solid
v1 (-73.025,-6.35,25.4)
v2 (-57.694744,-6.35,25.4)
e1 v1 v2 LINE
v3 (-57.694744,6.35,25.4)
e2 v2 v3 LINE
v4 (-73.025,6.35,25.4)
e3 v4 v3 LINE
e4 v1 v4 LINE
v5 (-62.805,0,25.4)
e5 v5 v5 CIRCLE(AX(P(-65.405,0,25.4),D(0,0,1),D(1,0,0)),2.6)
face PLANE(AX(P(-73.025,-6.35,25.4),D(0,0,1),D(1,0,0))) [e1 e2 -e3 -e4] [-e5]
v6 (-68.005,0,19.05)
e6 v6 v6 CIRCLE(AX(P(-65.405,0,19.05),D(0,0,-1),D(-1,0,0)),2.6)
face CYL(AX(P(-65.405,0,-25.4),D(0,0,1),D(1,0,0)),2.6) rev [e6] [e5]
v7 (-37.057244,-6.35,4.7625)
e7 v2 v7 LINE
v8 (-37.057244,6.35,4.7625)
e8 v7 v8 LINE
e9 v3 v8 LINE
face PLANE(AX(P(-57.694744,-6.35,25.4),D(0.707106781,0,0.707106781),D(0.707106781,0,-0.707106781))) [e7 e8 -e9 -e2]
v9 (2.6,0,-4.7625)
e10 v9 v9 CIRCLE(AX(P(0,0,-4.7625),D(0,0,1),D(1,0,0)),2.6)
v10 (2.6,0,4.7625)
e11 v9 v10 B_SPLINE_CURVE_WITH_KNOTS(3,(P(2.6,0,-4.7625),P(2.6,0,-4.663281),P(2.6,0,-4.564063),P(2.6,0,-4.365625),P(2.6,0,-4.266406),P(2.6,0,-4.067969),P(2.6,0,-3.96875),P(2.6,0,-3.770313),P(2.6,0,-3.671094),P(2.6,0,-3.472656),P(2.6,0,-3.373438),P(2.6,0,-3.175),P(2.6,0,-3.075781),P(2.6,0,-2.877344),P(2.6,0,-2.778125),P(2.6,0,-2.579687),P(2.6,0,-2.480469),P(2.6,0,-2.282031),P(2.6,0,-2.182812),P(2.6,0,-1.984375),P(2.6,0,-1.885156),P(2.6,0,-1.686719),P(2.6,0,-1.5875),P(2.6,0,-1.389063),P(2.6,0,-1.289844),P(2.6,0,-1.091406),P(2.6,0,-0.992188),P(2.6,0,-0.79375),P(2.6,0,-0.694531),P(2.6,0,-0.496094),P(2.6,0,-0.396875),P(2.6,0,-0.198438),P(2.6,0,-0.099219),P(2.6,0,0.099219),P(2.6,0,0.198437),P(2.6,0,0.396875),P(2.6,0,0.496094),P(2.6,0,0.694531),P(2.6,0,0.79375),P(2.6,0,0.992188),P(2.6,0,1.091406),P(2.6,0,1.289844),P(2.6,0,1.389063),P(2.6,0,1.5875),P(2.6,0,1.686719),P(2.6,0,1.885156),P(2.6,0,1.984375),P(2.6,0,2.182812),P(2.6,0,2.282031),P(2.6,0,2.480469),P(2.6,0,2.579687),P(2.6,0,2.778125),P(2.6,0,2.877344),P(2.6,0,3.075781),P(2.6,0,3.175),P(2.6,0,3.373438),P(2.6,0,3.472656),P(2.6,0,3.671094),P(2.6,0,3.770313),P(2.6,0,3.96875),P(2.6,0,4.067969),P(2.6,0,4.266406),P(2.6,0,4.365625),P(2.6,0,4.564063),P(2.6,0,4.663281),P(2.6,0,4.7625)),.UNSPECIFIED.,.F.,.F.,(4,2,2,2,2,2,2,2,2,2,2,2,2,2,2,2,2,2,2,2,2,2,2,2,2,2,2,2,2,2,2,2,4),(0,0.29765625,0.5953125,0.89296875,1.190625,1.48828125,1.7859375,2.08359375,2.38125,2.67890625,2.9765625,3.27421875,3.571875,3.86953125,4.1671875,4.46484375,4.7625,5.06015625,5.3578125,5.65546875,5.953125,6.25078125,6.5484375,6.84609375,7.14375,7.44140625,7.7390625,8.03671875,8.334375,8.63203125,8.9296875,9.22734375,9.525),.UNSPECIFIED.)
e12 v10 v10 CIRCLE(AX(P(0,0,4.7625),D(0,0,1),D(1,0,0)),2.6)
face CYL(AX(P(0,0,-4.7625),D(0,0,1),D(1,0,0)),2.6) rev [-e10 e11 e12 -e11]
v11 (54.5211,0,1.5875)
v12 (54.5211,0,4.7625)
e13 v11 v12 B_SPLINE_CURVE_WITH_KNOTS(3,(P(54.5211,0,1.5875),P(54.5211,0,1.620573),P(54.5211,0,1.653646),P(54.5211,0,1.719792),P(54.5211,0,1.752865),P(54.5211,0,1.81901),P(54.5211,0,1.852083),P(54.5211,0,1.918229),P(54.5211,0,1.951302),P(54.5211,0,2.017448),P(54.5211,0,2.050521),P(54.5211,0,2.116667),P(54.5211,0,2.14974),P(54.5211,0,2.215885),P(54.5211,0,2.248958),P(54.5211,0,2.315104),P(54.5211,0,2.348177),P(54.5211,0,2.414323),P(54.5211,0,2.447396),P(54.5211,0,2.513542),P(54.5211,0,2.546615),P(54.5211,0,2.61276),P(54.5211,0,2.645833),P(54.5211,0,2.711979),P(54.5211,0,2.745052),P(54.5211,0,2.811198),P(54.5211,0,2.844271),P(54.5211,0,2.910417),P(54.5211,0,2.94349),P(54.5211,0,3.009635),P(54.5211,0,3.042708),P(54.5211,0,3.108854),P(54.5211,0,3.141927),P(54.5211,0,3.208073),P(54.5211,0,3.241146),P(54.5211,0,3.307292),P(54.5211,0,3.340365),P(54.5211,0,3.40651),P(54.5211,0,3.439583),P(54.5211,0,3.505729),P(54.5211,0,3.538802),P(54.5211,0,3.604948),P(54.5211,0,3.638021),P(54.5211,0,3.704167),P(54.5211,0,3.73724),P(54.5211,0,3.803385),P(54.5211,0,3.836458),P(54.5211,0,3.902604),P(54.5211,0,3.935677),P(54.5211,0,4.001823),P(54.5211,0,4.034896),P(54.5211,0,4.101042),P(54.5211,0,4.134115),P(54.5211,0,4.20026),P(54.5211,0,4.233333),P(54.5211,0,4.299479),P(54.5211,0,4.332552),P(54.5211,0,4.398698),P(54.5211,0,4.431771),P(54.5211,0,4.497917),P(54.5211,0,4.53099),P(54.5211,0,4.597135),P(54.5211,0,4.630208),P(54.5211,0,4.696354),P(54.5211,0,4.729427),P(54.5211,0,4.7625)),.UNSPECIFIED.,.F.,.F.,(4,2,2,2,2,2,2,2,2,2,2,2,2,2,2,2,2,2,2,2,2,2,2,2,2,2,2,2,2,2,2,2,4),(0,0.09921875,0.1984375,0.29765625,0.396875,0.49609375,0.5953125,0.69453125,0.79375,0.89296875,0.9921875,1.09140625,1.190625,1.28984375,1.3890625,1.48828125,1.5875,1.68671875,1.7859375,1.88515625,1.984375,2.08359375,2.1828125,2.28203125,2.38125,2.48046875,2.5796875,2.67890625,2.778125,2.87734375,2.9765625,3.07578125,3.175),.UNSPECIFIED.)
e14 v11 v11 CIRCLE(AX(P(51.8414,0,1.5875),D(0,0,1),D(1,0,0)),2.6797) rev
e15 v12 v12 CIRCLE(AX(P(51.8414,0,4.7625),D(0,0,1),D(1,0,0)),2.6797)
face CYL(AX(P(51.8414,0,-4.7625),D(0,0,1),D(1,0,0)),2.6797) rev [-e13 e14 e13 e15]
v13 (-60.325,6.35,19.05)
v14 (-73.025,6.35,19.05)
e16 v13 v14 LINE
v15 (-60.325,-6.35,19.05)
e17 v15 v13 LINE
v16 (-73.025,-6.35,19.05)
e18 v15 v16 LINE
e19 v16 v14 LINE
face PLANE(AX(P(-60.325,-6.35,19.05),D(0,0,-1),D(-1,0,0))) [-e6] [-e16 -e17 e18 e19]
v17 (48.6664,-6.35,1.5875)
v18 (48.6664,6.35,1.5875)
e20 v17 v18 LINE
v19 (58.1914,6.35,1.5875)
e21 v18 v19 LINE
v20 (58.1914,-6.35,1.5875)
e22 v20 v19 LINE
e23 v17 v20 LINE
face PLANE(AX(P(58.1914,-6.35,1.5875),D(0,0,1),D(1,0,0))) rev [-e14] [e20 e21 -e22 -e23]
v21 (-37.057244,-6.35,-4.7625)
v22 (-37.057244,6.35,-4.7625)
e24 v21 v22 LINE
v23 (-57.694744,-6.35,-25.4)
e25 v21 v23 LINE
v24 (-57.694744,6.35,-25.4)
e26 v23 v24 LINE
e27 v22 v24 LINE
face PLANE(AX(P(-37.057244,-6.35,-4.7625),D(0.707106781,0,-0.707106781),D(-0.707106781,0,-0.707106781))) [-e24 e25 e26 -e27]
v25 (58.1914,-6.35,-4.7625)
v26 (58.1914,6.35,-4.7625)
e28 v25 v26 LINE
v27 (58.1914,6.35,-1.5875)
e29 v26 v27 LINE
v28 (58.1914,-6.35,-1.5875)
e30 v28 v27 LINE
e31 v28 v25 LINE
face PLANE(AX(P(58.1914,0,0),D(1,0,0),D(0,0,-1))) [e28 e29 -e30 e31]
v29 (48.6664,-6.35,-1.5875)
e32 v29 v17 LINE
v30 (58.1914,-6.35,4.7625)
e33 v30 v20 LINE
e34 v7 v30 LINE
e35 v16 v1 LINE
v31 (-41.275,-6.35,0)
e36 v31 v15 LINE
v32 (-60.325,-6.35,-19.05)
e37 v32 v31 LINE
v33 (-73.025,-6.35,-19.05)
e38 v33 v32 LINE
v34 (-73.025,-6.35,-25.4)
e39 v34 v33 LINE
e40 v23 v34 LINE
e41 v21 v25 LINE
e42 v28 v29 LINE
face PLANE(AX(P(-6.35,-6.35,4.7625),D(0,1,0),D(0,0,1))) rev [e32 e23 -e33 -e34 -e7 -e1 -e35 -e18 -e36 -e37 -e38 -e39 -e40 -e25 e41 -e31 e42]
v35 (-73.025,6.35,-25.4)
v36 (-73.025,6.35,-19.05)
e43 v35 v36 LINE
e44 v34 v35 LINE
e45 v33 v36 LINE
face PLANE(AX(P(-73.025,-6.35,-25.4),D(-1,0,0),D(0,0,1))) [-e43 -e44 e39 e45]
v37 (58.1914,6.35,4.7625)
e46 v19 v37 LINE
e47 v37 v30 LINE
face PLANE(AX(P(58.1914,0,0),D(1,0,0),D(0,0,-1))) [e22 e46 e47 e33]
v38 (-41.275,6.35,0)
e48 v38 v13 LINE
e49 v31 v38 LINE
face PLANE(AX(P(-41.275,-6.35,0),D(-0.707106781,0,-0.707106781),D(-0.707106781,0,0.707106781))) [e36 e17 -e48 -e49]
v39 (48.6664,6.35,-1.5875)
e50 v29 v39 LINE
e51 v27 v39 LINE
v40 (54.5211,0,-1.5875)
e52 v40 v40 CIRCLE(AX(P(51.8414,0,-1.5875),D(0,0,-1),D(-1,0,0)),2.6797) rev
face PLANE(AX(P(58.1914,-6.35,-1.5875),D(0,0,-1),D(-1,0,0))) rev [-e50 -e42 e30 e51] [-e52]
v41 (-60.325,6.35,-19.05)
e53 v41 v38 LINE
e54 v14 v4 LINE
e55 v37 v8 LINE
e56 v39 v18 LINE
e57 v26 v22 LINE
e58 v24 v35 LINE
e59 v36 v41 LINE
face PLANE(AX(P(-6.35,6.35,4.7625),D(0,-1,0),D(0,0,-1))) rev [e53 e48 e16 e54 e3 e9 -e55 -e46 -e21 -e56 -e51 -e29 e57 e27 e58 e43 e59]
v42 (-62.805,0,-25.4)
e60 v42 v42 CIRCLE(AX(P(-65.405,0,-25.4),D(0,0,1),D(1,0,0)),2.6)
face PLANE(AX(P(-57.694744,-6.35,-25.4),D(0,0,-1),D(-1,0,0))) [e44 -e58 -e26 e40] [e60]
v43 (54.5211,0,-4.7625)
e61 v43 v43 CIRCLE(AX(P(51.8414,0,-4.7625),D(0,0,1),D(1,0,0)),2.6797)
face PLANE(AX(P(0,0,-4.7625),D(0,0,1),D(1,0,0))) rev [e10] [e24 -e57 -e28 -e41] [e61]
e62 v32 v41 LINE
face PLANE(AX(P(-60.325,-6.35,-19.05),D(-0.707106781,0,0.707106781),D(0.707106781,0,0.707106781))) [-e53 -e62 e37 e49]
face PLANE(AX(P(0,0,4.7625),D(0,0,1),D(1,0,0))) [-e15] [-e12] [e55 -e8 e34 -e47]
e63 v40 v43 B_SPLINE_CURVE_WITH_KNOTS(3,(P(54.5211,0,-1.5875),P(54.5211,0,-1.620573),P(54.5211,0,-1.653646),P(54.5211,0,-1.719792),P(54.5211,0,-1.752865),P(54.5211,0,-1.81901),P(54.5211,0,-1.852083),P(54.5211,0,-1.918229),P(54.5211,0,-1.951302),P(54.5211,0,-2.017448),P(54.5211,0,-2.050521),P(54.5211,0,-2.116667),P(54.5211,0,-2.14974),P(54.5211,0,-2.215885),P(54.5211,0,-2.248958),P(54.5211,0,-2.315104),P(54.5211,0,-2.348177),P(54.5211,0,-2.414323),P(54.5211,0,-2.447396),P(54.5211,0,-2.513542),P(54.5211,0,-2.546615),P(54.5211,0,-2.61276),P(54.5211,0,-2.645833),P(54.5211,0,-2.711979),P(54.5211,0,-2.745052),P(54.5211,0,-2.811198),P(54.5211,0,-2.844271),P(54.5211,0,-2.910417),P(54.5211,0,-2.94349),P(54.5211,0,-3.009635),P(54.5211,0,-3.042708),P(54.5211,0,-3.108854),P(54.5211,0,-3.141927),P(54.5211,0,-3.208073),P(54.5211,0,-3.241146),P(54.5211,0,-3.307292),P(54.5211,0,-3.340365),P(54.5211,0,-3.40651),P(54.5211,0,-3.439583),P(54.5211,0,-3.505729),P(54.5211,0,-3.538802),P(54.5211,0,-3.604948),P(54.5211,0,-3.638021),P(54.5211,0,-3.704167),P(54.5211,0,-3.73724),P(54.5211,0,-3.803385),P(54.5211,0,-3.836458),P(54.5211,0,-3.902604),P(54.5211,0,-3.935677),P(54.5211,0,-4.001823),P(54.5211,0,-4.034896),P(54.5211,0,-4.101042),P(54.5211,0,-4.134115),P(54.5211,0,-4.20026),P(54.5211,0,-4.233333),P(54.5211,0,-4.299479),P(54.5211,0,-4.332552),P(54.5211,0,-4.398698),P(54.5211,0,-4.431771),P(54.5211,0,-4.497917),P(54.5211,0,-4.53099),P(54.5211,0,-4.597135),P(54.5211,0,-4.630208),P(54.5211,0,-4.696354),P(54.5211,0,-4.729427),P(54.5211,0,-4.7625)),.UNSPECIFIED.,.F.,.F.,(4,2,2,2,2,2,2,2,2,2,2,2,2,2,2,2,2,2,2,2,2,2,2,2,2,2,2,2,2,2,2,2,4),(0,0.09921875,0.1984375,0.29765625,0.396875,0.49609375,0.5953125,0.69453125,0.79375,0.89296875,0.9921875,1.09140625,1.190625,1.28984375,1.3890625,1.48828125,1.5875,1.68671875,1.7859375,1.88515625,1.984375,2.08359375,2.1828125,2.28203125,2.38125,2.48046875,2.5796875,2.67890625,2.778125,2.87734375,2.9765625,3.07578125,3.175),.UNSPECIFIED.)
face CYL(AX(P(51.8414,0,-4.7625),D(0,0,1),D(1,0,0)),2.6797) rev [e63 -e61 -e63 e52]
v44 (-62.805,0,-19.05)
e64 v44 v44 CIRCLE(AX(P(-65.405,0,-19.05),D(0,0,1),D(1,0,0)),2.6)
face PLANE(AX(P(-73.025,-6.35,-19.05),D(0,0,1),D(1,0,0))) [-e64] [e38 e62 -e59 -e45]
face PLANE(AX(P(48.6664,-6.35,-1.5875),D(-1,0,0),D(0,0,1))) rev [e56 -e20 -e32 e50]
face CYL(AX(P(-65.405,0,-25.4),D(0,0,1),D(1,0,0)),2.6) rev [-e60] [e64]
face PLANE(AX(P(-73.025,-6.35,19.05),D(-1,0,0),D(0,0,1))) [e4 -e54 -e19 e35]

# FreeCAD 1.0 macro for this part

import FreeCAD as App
import Part
import Sketcher

V = App.Vector
Q = App.Units.Quantity

doc = App.newDocument("Part")
body = doc.addObject("PartDesign::Body", "Body")

# Sketch on XY plane
sketch1 = body.newObject("Sketcher::SketchObject", "Sketch")
sketch1.AttachmentSupport = (doc.getObject("XY_Plane"), [""])
sketch1.MapMode = "FlatFace"
sketch1.addGeometry([
    Part.LineSegment(V(-6, 6, 0), V(-6, -6, 0)),
    Part.LineSegment(V(-6, -6, 0), V(6, -6, 0)),
    Part.LineSegment(V(6, -6, 0), V(6, 6, 0)),
    Part.LineSegment(V(6, 6, 0), V(-6, 6, 0)),
], False)
sketch1.addConstraint([
    Sketcher.Constraint("Coincident", 0, 2, 1, 1),
    Sketcher.Constraint("Coincident", 1, 2, 2, 1),
    Sketcher.Constraint("Coincident", 2, 2, 3, 1),
    Sketcher.Constraint("Coincident", 3, 2, 0, 1),
    Sketcher.Constraint("Vertical", 0),
    Sketcher.Constraint("Horizontal", 1),
    Sketcher.Constraint("Vertical", 2),
    Sketcher.Constraint("Horizontal", 3),
    Sketcher.Constraint("Symmetric", 0, 2, 2, 2, -1, 1),
    Sketcher.Constraint("Equal", 3, 0),
    Sketcher.Constraint("DistanceX", 1, 1, 1, 2, Q("0.5 in")),
])
pad1 = body.newObject("PartDesign::Pad", "Pad")
pad1.Profile = sketch1
pad1.Length = Q("0.375 in")
pad1.Midplane = True

# Sketch on XY plane
sketch2 = body.newObject("Sketcher::SketchObject", "Sketch001")
sketch2.AttachmentSupport = (doc.getObject("XY_Plane"), [""])
sketch2.MapMode = "FlatFace"
sketch2.AttachmentOffset = App.Placement(V(0, 0, 0.1875 * 25.4), App.Rotation())
sketch2.addGeometry(Part.Circle(V(0, 0, 0), V(0, 0, 1), 2.6), False)
sketch2.addConstraint([
    Sketcher.Constraint("Coincident", 0, 3, -1, 1),
    Sketcher.Constraint("Diameter", 0, Q("5.2 mm")),
])
pocket1 = body.newObject("PartDesign::Pocket", "Pocket")
pocket1.Profile = sketch2
pocket1.Type = "ThroughAll"

# Sketch on YZ plane
sketch3 = body.newObject("Sketcher::SketchObject", "Sketch002")
sketch3.AttachmentSupport = (doc.getObject("YZ_Plane"), [""])
sketch3.MapMode = "FlatFace"
sketch3.AttachmentOffset = App.Placement(V(0, 0, 0.25 * 25.4), App.Rotation())
sketch3.addGeometry([
    Part.LineSegment(V(6, 5, 0), V(-6, 5, 0)),
    Part.LineSegment(V(-6, 5, 0), V(-6, -5, 0)),
    Part.LineSegment(V(-6, -5, 0), V(6, -5, 0)),
    Part.LineSegment(V(6, -5, 0), V(6, 5, 0)),
], False)
sketch3.addConstraint([
    Sketcher.Constraint("Coincident", 0, 2, 1, 1),
    Sketcher.Constraint("Coincident", 1, 2, 2, 1),
    Sketcher.Constraint("Coincident", 2, 2, 3, 1),
    Sketcher.Constraint("Coincident", 3, 2, 0, 1),
    Sketcher.Constraint("Horizontal", 0),
    Sketcher.Constraint("Vertical", 1),
    Sketcher.Constraint("Horizontal", 2),
    Sketcher.Constraint("Vertical", 3),
    Sketcher.Constraint("Symmetric", 0, 2, 2, 2, -1, 1),
    Sketcher.Constraint("DistanceX", 0, 2, 0, 1, Q("0.5 in")),
    Sketcher.Constraint("DistanceY", 1, 2, 1, 1, Q("0.375 in")),
])
pad2 = body.newObject("PartDesign::Pad", "Pad001")
pad2.Profile = sketch3
pad2.Length = Q("2.041 in")

# Sketch on XY plane
sketch4 = body.newObject("Sketcher::SketchObject", "Sketch003")
sketch4.AttachmentSupport = (doc.getObject("XY_Plane"), [""])
sketch4.MapMode = "FlatFace"
sketch4.AttachmentOffset = App.Placement(V(0, 0, 0.1875 * 25.4), App.Rotation())
sketch4.addGeometry(Part.Circle(V(51.8, 0, 0), V(0, 0, 1), 2.7), False)
sketch4.addConstraint([
    Sketcher.Constraint("PointOnObject", 0, 3, -1),
    Sketcher.Constraint("Diameter", 0, Q("0.211 in")),
    Sketcher.Constraint("DistanceX", -1, 1, 0, 3, Q("2.041 in")),
])
pocket2 = body.newObject("PartDesign::Pocket", "Pocket001")
pocket2.Profile = sketch4
pocket2.Type = "ThroughAll"

# Sketch on XZ plane
sketch5 = body.newObject("Sketcher::SketchObject", "Sketch004")
sketch5.AttachmentSupport = (doc.getObject("XZ_Plane"), [""])
sketch5.MapMode = "FlatFace"
sketch5.AttachmentOffset = App.Placement(V(0, 0, -0.25 * 25.4), App.Rotation())
sketch5.addGeometry([
    Part.LineSegment(V(48.7, -1.6, 0), V(48.7, 1.6, 0)),
    Part.LineSegment(V(48.7, 1.6, 0), V(58.2, 1.6, 0)),
    Part.LineSegment(V(58.2, 1.6, 0), V(58.2, -1.6, 0)),
    Part.LineSegment(V(58.2, -1.6, 0), V(48.7, -1.6, 0)),
], False)
sketch5.addConstraint([
    Sketcher.Constraint("Coincident", 0, 2, 1, 1),
    Sketcher.Constraint("Coincident", 1, 2, 2, 1),
    Sketcher.Constraint("Coincident", 2, 2, 3, 1),
    Sketcher.Constraint("Coincident", 3, 2, 0, 1),
    Sketcher.Constraint("Vertical", 0),
    Sketcher.Constraint("Horizontal", 1),
    Sketcher.Constraint("Vertical", 2),
    Sketcher.Constraint("Horizontal", 3),
    Sketcher.Constraint("DistanceX", 1, 1, 1, 2, Q("0.375 in")),
    Sketcher.Constraint("DistanceY", 0, 1, 0, 2, Q("0.125 in")),
    Sketcher.Constraint("DistanceX", -1, 1, 0, 2, Q("1.916 in")),
    Sketcher.Constraint("DistanceY", -1, 1, 0, 2, Q("0.0625 in")),
])
pocket3 = body.newObject("PartDesign::Pocket", "Pocket002")
pocket3.Profile = sketch5
pocket3.Type = "ThroughAll"
pocket3.Reversed = True

# Sketch on YZ plane
sketch6 = body.newObject("Sketcher::SketchObject", "Sketch005")
sketch6.AttachmentSupport = (doc.getObject("YZ_Plane"), [""])
sketch6.MapMode = "FlatFace"
sketch6.AttachmentOffset = App.Placement(V(0, 0, -0.25 * 25.4), App.Rotation())
sketch6.addGeometry([
    Part.LineSegment(V(6, -5, 0), V(-6, -5, 0)),
    Part.LineSegment(V(-6, -5, 0), V(-6, 5, 0)),
    Part.LineSegment(V(-6, 5, 0), V(6, 5, 0)),
    Part.LineSegment(V(6, 5, 0), V(6, -5, 0)),
], False)
sketch6.addConstraint([
    Sketcher.Constraint("Coincident", 0, 2, 1, 1),
    Sketcher.Constraint("Coincident", 1, 2, 2, 1),
    Sketcher.Constraint("Coincident", 2, 2, 3, 1),
    Sketcher.Constraint("Coincident", 3, 2, 0, 1),
    Sketcher.Constraint("Horizontal", 0),
    Sketcher.Constraint("Vertical", 1),
    Sketcher.Constraint("Horizontal", 2),
    Sketcher.Constraint("Vertical", 3),
    Sketcher.Constraint("Symmetric", 0, 2, 2, 2, -1, 1),
    Sketcher.Constraint("DistanceX", 0, 2, 0, 1, Q("0.5 in")),
    Sketcher.Constraint("DistanceY", 1, 1, 1, 2, Q("0.375 in")),
])
pad3 = body.newObject("PartDesign::Pad", "Pad002")
pad3.Profile = sketch6
pad3.Length = Q("1.375 in")
pad3.Reversed = True

# Sketch on XZ plane
sketch7 = body.newObject("Sketcher::SketchObject", "Sketch006")
sketch7.AttachmentSupport = (doc.getObject("XZ_Plane"), [""])
sketch7.MapMode = "FlatFace"
sketch7.AttachmentOffset = App.Placement(V(0, 0, -0.25 * 25.4), App.Rotation())
sketch7.addGeometry([
    Part.LineSegment(V(-37, -5, 0), V(-58, -25, 0)),  # 0
    Part.LineSegment(V(-58, -25, 0), V(-73, -25, 0)),  # 1
    Part.LineSegment(V(-73, -25, 0), V(-73, -19, 0)),  # 2
    Part.LineSegment(V(-73, -19, 0), V(-60, -19, 0)),  # 3
    Part.LineSegment(V(-60, -19, 0), V(-41, 0, 0)),  # 4
    Part.LineSegment(V(-41, 0, 0), V(-60, 19, 0)),  # 5
    Part.LineSegment(V(-60, 19, 0), V(-73, 19, 0)),  # 6
    Part.LineSegment(V(-73, 19, 0), V(-73, 25, 0)),  # 7
    Part.LineSegment(V(-73, 25, 0), V(-58, 25, 0)),  # 8
    Part.LineSegment(V(-58, 25, 0), V(-37, 5, 0)),  # 9
    Part.LineSegment(V(-37, 5, 0), V(-37, -5, 0)),  # 10
], False)
sketch7.addConstraint([
    Sketcher.Constraint("Coincident", 0, 2, 1, 1),
    Sketcher.Constraint("Coincident", 1, 2, 2, 1),
    Sketcher.Constraint("Coincident", 2, 2, 3, 1),
    Sketcher.Constraint("Coincident", 3, 2, 4, 1),
    Sketcher.Constraint("Coincident", 4, 2, 5, 1),
    Sketcher.Constraint("Coincident", 5, 2, 6, 1),
    Sketcher.Constraint("Coincident", 6, 2, 7, 1),
    Sketcher.Constraint("Coincident", 7, 2, 8, 1),
    Sketcher.Constraint("Coincident", 8, 2, 9, 1),
    Sketcher.Constraint("Coincident", 9, 2, 10, 1),
    Sketcher.Constraint("Coincident", 10, 2, 0, 1),
    Sketcher.Constraint("Horizontal", 1),
    Sketcher.Constraint("Vertical", 2),
    Sketcher.Constraint("Horizontal", 3),
    Sketcher.Constraint("Horizontal", 6),
    Sketcher.Constraint("Vertical", 7),
    Sketcher.Constraint("Horizontal", 8),
    Sketcher.Constraint("Vertical", 10),
    Sketcher.Constraint("Symmetric", 3, 2, 5, 2, -1),
    Sketcher.Constraint("Symmetric", 1, 2, 7, 2, -1),
    Sketcher.Constraint("PointOnObject", 4, 2, -1),
    Sketcher.Constraint("Parallel", 0, 4),
    Sketcher.Constraint("Perpendicular", 4, 5),
    Sketcher.Constraint("Parallel", 5, 9),
    Sketcher.Constraint("Vertical", 0, 2, 8, 2),
    Sketcher.Constraint("DistanceX", 3, 1, 3, 2, Q("0.5 in")),
    Sketcher.Constraint("DistanceY", 0, 2, -1, 1, Q("1 in")),
    Sketcher.Constraint("DistanceY", 2, 1, 2, 2, Q("0.25 in")),
    Sketcher.Constraint("DistanceY", 10, 2, 10, 1, Q("0.375 in")),
    Sketcher.Constraint("DistanceX", 1, 2, -1, 1, Q("2.875 in")),
    Sketcher.Constraint("DistanceX", 1, 2, 1, 1, Q("15.330256 mm")),
])
pad4 = body.newObject("PartDesign::Pad", "Pad003")
pad4.Profile = sketch7
pad4.Length = Q("0.5 in")

# Sketch on XY plane
sketch8 = body.newObject("Sketcher::SketchObject", "Sketch007")
sketch8.AttachmentSupport = (doc.getObject("XY_Plane"), [""])
sketch8.MapMode = "FlatFace"
sketch8.AttachmentOffset = App.Placement(V(0, 0, 1 * 25.4), App.Rotation())
sketch8.addGeometry(Part.Circle(V(-65.4, 0, 0), V(0, 0, 1), 2.6), False)
sketch8.addConstraint([
    Sketcher.Constraint("PointOnObject", 0, 3, -1),
    Sketcher.Constraint("Diameter", 0, Q("5.2 mm")),
    Sketcher.Constraint("DistanceX", 0, 3, -1, 1, Q("2.575 in")),
])
pocket4 = body.newObject("PartDesign::Pocket", "Pocket003")
pocket4.Profile = sketch8
pocket4.Type = "ThroughAll"

doc.recompute()
